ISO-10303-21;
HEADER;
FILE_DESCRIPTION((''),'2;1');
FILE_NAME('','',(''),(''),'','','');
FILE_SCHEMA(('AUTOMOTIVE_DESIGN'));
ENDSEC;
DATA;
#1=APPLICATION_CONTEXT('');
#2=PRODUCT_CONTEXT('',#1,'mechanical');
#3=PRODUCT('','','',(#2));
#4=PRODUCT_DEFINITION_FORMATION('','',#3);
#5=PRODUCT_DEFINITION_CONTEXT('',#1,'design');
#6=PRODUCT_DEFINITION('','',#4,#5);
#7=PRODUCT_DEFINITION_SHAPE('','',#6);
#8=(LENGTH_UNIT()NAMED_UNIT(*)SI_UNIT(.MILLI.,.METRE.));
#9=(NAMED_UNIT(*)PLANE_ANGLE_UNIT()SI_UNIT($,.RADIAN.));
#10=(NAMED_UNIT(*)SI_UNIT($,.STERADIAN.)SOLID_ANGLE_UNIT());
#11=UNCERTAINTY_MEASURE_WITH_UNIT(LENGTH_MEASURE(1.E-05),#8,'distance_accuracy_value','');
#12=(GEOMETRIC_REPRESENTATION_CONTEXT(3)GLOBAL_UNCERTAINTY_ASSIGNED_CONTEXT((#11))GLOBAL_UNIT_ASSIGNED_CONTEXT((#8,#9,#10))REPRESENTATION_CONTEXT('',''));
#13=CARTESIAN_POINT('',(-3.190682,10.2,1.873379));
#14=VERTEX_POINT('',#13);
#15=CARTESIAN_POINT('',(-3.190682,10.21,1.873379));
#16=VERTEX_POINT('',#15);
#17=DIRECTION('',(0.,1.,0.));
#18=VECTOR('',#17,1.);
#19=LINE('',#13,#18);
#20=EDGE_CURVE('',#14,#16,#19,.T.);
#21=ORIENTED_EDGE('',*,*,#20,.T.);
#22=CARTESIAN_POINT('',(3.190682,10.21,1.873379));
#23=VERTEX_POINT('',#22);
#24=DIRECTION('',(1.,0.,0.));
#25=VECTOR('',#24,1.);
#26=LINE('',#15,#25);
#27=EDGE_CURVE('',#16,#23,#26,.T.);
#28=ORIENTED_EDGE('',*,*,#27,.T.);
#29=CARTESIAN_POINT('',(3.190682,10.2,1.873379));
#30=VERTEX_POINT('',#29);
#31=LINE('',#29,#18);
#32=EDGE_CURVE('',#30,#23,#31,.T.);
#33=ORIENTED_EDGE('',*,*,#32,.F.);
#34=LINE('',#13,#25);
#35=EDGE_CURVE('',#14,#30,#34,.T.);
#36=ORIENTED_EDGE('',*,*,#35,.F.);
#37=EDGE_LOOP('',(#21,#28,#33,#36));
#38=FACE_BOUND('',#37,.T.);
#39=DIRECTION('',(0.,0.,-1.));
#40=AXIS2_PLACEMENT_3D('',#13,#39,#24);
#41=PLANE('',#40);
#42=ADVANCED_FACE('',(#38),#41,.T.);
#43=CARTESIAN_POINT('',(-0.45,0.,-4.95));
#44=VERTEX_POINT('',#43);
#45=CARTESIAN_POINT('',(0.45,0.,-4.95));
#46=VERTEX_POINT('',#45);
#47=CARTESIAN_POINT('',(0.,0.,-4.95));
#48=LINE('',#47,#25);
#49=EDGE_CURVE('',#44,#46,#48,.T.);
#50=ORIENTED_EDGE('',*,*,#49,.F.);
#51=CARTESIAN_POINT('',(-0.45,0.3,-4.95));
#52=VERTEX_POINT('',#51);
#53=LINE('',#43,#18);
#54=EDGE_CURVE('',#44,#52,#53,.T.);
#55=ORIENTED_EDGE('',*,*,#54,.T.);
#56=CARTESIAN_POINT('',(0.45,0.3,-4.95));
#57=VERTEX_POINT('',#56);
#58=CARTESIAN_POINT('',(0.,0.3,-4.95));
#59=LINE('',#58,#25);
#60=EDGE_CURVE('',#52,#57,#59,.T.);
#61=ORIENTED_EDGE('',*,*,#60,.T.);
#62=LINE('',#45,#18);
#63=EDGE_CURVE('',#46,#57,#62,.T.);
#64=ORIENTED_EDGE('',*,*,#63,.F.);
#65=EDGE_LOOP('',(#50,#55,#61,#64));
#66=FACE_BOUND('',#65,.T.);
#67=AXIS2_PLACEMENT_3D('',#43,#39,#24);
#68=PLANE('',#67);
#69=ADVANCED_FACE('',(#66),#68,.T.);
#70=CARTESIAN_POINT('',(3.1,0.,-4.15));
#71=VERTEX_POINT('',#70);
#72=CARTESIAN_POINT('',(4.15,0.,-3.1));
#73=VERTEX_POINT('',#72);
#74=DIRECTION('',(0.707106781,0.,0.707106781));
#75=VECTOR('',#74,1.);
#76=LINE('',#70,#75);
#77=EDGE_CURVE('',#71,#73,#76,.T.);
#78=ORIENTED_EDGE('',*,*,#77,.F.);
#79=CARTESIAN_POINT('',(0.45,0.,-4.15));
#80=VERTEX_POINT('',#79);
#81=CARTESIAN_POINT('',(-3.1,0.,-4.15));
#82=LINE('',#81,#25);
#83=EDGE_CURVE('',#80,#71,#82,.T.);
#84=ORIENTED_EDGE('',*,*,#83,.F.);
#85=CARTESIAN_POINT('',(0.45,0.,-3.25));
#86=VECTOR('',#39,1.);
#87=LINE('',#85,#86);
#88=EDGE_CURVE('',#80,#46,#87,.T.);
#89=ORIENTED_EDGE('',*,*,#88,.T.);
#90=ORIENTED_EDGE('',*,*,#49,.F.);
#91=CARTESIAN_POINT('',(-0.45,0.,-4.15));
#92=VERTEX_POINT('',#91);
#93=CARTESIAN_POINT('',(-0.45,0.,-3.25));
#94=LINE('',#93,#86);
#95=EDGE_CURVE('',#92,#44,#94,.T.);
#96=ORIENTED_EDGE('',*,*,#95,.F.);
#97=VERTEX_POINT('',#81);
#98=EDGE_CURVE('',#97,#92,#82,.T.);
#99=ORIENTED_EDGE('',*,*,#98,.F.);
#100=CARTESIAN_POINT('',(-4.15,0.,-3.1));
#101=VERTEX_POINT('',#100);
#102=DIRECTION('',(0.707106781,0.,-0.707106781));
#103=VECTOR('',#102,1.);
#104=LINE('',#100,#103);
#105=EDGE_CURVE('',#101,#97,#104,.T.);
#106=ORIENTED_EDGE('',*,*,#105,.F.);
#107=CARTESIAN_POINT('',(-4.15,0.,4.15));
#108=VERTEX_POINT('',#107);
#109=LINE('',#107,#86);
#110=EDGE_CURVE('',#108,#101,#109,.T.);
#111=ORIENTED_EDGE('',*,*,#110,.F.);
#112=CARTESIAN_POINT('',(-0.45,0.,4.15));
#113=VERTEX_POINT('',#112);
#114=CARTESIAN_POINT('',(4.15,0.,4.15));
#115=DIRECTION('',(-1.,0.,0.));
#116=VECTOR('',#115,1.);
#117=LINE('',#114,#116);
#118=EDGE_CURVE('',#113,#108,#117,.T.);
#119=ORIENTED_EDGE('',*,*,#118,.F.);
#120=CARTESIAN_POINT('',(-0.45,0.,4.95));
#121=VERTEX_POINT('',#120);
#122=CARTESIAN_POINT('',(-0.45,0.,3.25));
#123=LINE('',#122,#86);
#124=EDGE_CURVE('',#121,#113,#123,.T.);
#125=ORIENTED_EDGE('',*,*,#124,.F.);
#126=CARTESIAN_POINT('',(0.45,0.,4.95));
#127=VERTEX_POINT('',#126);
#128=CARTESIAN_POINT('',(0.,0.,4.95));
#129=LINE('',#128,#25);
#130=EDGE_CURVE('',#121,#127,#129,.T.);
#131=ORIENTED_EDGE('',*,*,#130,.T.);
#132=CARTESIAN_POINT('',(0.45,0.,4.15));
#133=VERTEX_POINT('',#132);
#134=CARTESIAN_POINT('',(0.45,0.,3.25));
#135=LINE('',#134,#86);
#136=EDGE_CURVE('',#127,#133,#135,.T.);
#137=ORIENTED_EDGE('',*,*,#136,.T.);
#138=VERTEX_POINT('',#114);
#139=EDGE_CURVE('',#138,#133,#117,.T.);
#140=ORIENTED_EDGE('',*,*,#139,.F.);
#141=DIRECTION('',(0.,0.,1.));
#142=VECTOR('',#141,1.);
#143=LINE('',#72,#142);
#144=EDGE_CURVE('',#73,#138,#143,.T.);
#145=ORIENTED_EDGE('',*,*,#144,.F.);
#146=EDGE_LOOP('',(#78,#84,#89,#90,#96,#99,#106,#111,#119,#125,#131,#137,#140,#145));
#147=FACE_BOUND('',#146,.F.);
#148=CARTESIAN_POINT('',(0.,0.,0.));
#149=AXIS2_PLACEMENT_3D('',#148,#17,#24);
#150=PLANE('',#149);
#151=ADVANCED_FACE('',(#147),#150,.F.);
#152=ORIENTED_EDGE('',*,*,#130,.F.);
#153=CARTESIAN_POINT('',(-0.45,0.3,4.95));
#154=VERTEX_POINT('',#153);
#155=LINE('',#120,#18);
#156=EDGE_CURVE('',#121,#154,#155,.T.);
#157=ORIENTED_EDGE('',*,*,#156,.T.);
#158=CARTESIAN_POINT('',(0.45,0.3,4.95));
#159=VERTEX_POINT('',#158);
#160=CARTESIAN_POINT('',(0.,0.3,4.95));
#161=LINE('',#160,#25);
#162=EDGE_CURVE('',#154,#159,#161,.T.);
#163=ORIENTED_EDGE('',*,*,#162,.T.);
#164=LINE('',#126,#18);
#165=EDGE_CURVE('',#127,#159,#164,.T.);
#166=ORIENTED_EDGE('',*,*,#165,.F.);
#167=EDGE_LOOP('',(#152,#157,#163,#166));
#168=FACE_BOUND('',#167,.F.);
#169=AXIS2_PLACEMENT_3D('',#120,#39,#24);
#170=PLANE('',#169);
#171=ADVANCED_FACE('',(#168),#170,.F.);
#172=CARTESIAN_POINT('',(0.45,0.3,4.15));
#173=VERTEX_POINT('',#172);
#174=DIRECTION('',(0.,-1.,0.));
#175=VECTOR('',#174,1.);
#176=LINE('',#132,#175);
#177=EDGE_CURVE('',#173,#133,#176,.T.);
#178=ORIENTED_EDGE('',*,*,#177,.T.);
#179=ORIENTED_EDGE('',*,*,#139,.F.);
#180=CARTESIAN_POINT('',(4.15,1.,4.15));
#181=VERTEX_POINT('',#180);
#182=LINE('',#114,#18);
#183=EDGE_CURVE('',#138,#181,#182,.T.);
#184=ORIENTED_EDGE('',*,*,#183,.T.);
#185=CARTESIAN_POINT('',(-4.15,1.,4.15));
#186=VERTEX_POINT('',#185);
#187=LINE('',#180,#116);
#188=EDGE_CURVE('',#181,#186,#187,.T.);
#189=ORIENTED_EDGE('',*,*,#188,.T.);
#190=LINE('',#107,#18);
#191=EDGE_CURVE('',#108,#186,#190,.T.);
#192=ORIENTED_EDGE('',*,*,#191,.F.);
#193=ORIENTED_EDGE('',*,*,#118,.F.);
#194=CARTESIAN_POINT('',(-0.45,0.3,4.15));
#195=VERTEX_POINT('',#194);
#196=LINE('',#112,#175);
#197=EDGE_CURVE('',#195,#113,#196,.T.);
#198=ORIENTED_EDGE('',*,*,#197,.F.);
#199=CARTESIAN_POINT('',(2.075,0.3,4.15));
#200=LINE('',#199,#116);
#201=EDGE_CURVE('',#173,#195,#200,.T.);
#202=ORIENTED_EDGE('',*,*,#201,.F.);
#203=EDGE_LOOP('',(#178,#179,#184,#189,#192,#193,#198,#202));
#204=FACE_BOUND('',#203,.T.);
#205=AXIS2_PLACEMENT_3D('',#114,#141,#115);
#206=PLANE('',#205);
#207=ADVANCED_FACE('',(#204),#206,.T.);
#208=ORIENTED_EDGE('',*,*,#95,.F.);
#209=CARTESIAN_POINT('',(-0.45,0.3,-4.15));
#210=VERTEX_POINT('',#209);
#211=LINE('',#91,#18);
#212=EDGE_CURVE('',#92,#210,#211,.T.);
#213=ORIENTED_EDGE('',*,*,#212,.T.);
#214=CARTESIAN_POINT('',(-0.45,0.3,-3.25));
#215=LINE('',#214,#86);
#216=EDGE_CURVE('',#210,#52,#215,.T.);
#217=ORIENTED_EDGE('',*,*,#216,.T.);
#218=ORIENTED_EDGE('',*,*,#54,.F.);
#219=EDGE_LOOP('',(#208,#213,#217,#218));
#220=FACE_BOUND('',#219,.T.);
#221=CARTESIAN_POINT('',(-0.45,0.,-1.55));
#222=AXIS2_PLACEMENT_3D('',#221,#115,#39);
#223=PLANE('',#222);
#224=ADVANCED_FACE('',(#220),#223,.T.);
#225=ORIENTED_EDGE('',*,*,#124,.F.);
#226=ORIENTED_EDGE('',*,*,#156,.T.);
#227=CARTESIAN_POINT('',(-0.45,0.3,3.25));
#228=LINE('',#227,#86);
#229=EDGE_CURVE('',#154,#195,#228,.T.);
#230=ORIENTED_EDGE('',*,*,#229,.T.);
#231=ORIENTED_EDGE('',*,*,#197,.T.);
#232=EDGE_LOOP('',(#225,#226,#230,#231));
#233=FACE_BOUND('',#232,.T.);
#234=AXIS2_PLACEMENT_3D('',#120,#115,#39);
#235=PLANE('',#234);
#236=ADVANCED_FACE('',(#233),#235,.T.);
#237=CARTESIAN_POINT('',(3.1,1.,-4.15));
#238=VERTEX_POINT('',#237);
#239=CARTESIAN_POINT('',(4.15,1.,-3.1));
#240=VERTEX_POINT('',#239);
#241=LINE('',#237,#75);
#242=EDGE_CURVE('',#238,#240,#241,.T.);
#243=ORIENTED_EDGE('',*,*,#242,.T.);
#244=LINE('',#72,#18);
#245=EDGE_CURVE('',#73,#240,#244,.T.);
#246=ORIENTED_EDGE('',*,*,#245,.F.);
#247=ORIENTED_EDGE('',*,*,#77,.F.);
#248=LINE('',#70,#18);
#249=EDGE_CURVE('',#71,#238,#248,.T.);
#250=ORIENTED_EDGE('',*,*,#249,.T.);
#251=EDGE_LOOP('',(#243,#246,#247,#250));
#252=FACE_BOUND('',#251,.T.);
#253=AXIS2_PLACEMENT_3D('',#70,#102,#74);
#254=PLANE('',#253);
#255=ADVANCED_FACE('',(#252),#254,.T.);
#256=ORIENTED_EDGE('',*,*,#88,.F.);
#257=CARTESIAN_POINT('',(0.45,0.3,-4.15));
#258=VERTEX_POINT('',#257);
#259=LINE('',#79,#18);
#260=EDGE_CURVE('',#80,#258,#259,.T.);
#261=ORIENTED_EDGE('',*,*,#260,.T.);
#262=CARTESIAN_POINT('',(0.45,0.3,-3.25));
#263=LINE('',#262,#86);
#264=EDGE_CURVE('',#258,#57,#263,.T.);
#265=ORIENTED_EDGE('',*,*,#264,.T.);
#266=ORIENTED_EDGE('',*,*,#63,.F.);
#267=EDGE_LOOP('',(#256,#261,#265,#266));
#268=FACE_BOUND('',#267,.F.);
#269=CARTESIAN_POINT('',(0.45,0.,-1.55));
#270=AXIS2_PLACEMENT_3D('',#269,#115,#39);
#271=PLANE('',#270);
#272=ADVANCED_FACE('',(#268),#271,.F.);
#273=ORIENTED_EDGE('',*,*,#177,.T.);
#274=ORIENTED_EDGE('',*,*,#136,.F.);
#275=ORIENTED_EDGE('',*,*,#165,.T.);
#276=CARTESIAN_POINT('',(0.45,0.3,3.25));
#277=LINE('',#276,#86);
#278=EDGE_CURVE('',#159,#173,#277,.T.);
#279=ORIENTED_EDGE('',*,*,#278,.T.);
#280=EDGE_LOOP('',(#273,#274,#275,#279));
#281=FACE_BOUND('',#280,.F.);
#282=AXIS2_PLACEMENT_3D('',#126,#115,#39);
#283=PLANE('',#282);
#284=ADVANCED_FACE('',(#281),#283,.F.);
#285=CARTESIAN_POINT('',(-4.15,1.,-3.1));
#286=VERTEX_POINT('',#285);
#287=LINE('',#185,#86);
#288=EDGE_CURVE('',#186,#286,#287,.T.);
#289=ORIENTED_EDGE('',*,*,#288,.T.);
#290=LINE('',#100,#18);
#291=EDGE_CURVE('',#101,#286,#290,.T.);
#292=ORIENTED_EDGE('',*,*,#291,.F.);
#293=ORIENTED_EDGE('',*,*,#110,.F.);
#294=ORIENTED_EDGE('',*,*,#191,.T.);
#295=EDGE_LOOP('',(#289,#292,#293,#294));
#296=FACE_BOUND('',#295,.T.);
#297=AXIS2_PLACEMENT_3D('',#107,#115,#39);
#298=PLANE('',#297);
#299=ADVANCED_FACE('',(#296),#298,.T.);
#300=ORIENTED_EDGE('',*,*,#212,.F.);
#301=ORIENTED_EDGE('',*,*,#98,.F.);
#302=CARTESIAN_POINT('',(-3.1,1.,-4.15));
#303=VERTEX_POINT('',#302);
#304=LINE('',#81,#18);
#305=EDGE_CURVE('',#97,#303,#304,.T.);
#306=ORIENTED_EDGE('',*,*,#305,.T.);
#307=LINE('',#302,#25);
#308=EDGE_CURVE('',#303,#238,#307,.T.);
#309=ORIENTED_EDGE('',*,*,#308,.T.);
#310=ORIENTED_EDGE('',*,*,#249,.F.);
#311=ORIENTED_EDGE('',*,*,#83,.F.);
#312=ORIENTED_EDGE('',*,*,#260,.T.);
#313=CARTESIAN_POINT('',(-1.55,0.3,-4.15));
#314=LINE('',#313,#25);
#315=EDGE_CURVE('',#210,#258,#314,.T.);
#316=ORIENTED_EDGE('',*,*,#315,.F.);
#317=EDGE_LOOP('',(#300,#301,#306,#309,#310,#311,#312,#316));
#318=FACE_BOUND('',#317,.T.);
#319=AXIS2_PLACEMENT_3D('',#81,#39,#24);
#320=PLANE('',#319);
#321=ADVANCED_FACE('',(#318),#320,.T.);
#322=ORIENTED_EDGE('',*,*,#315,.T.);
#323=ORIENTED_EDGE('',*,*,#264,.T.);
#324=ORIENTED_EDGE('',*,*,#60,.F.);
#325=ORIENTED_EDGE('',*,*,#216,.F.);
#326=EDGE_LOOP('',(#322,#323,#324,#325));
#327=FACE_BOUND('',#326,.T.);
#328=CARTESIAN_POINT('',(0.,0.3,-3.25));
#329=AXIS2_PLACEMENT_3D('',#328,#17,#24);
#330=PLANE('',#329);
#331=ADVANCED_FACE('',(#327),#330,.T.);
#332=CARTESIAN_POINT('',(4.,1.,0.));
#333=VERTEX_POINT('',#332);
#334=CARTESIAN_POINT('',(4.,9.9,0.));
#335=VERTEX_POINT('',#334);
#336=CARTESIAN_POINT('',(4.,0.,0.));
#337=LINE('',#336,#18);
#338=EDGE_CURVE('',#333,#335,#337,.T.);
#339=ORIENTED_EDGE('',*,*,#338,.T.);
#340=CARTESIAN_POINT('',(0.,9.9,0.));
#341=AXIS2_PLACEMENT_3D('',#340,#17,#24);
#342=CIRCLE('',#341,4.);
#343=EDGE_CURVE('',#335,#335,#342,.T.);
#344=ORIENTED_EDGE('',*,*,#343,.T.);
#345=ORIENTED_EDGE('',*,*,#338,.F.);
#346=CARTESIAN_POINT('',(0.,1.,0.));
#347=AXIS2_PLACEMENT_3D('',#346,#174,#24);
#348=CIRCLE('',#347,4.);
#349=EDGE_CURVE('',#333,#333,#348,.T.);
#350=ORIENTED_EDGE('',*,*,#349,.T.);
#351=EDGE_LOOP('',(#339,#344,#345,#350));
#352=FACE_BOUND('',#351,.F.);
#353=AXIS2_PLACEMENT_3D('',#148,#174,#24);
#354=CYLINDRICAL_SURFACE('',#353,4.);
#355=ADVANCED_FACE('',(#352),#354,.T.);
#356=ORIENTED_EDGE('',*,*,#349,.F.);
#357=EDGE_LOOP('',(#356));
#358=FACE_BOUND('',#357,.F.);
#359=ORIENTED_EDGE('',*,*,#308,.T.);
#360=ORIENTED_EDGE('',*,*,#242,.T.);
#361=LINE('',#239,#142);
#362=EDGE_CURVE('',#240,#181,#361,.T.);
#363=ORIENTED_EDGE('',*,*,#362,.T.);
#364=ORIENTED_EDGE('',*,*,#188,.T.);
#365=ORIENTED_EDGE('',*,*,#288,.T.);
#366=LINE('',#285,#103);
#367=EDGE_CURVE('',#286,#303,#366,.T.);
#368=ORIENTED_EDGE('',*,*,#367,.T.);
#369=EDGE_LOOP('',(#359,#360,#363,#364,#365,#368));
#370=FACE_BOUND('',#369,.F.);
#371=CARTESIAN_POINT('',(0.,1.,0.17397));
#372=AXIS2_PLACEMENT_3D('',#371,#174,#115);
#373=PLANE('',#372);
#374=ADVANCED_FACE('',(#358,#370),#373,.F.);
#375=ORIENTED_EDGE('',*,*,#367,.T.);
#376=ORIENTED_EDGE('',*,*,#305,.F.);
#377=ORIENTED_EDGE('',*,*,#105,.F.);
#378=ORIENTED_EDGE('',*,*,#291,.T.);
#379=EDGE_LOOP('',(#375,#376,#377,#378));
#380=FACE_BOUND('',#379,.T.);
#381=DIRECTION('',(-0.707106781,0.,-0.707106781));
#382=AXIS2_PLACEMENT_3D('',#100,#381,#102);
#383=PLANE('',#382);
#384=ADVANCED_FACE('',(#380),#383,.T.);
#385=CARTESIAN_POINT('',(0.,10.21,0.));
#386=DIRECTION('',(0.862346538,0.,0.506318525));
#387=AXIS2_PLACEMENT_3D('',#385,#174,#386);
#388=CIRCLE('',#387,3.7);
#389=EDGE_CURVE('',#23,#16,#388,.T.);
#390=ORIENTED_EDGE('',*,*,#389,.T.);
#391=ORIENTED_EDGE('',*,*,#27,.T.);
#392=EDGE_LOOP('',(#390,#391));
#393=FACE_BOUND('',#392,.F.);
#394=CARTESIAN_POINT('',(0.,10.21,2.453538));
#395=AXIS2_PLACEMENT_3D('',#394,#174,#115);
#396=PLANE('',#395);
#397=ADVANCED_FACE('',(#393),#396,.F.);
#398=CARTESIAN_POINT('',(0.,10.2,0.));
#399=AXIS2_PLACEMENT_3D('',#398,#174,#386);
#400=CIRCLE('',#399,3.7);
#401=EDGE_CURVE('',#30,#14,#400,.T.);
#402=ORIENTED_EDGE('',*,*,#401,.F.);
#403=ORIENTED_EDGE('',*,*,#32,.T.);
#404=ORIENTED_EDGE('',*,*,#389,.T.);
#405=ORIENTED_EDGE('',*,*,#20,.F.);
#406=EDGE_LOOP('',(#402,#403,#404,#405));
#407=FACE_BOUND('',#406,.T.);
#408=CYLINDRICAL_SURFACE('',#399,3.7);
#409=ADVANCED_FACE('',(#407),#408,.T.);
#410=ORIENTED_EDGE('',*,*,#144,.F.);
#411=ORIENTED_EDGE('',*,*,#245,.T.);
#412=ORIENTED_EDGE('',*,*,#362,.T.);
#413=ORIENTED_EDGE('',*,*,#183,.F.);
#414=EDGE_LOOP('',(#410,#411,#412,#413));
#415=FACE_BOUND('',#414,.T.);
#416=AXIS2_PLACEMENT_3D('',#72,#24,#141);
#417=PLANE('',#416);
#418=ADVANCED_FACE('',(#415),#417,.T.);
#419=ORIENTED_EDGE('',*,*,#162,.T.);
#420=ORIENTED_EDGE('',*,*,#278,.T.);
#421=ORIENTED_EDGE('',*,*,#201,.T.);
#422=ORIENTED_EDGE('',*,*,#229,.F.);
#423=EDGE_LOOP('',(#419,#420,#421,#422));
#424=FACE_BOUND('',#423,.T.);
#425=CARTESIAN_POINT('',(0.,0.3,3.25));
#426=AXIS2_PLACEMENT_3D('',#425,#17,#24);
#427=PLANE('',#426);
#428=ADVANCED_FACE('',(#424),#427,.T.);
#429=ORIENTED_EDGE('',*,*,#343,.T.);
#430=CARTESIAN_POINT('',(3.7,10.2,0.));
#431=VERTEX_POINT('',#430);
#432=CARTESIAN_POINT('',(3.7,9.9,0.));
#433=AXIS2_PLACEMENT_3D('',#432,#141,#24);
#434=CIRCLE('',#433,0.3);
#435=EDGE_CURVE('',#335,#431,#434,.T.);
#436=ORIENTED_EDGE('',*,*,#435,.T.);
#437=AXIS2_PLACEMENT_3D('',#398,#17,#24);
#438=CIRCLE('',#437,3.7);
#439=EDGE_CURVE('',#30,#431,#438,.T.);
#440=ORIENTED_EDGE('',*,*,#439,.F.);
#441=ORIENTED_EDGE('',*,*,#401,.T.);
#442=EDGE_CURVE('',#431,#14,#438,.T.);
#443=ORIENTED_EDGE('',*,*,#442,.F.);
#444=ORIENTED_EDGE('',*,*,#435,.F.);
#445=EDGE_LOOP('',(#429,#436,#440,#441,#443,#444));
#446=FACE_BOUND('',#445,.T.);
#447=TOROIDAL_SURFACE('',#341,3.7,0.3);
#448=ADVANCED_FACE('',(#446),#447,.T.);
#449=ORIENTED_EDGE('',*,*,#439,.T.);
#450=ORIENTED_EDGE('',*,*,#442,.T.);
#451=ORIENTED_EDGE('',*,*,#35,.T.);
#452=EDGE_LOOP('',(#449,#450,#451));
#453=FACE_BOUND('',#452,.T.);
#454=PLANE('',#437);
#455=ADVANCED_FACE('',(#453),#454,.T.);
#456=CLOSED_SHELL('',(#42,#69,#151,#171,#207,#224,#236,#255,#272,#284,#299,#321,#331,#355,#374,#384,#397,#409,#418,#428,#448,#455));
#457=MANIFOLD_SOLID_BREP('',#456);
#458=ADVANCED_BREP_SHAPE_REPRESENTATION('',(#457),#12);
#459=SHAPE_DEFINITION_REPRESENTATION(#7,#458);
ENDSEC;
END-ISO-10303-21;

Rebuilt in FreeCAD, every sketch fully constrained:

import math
import FreeCAD as App
import Part
import Sketcher


def edges_at(feature, points):
    """Names of the edges that pass closest to the given points."""
    edges = feature.Shape.Edges
    near = lambda p: min(range(len(edges)), key=lambda i: edges[i].distToShape(Part.Vertex(*p))[0])
    return sorted({f"Edge{near(p) + 1}" for p in points})


def add_polygon(sketch, points):
    """Adds a closed chain of lines whose ends are joined by coincident constraints."""
    first, n = sketch.GeometryCount, len(points)
    for a, b in zip(points, points[1:] + points[:1]):
        sketch.addGeometry(Part.LineSegment(App.Vector(*a, 0), App.Vector(*b, 0)), False)
    for i in range(n):
        sketch.addConstraint(Sketcher.Constraint("Coincident", first + i, 2, first + (i + 1) % n, 1))

doc = App.newDocument("Part")
body = doc.addObject("PartDesign::Body", "Body")

sketch1 = body.newObject("Sketcher::SketchObject", "Sketch")
sketch1.AttachmentSupport = (doc.getObject("XZ_Plane"), [""])
sketch1.MapMode = "FlatFace"
add_polygon(sketch1, [(-4.2, 4.2), (4.2, 4.2), (4.2, -3.1), (3.1, -4.2), (-3.1, -4.2), (-4.2, -3.1)])
sketch1.addConstraint([
    Sketcher.Constraint("Horizontal", 0),
    Sketcher.Constraint("Vertical", 1),
    Sketcher.Constraint("Horizontal", 3),
    Sketcher.Constraint("Vertical", 5),
    Sketcher.Constraint("Symmetric", 1, 2, 4, 2, -2),
    Sketcher.Constraint("Perpendicular", 2, 4),
    Sketcher.Constraint("Equal", 2, 4),
    Sketcher.Constraint("DistanceX", 0, 1, 0, 2, 8.3),
    Sketcher.Constraint("DistanceX", 3, 2, 3, 1, 6.2),
    Sketcher.Constraint("DistanceY", 1, 2, 1, 1, 7.25),
    Sketcher.Constraint("DistanceY", 1, 2, -1, 1, 3.1),
])
pad1 = body.newObject("PartDesign::Pad", "Pad")
pad1.Profile = sketch1
pad1.Length = 1
pad1.Reversed = True

sketch2 = body.newObject("Sketcher::SketchObject", "Sketch001")
sketch2.AttachmentSupport = (doc.getObject("XZ_Plane"), [""])
sketch2.MapMode = "FlatFace"
sketch2.addGeometry(Part.Circle(App.Vector(0, 0, 0), App.Vector(0, 0, 1), 4), False)
sketch2.addConstraint([
    Sketcher.Constraint("Coincident", 0, 3, -1, 1),
    Sketcher.Constraint("Diameter", 0, 8.0),
])
pad2 = body.newObject("PartDesign::Pad", "Pad001")
pad2.Profile = sketch2
pad2.Length = 10.2
pad2.Reversed = True
doc.recompute()

fillet = body.newObject("PartDesign::Fillet", "Fillet")
fillet.Base = (pad2, edges_at(pad2, [(-4, 10.2, 0)]))
fillet.Radius = 0.3

sketch3 = body.newObject("Sketcher::SketchObject", "Sketch002")
sketch3.AttachmentSupport = (doc.getObject("XZ_Plane"), [""])
sketch3.MapMode = "FlatFace"
add_polygon(sketch3, [(-0.5, -5), (-0.5, -1.6), (0.5, -1.6), (0.5, -5)])
add_polygon(sketch3, [(-0.5, 1.6), (-0.5, 5), (0.5, 5), (0.5, 1.6)])
sketch3.addConstraint([
    Sketcher.Constraint("Vertical", 0),
    Sketcher.Constraint("Horizontal", 1),
    Sketcher.Constraint("Vertical", 2),
    Sketcher.Constraint("Horizontal", 3),
    Sketcher.Constraint("Vertical", 4),
    Sketcher.Constraint("Horizontal", 5),
    Sketcher.Constraint("Vertical", 6),
    Sketcher.Constraint("Horizontal", 7),
    Sketcher.Constraint("Symmetric", 2, 2, 4, 2, -1, 1),
    Sketcher.Constraint("Symmetric", 0, 2, 6, 2, -1, 1),
    Sketcher.Constraint("Vertical", 3, 2, 4, 2),
    Sketcher.Constraint("DistanceX", 1, 1, 1, 2, 0.9),
    Sketcher.Constraint("DistanceY", 0, 1, 0, 2, 3.4),
    Sketcher.Constraint("DistanceY", 0, 2, 4, 2, 6.5),
])
pad3 = body.newObject("PartDesign::Pad", "Pad002")
pad3.Profile = sketch3
pad3.Length = 0.3
pad3.Reversed = True

sketch4 = body.newObject("Sketcher::SketchObject", "Sketch003")
sketch4.AttachmentSupport = (doc.getObject("XZ_Plane"), [""])
sketch4.MapMode = "FlatFace"
sketch4.AttachmentOffset = App.Placement(App.Vector(0, 0, -10.2), App.Rotation())
sketch4.addGeometry([
    Part.LineSegment(App.Vector(3.2, 1.9, 0), App.Vector(-3.2, 1.9, 0)),
    Part.ArcOfCircle(Part.Circle(App.Vector(0, 0, 0), App.Vector(0, 0, 1), 3.7), math.radians(30), math.radians(150)),
], False)
sketch4.addConstraint([
    Sketcher.Constraint("Coincident", 0, 1, 1, 1),
    Sketcher.Constraint("Coincident", 1, 2, 0, 2),
    Sketcher.Constraint("Horizontal", 0),
    Sketcher.Constraint("Coincident", 1, 3, -1, 1),
    Sketcher.Constraint("Radius", 1, 3.7),
    Sketcher.Constraint("DistanceX", 0, 2, 0, 1, 6.381364),
])
pad4 = body.newObject("PartDesign::Pad", "Pad003")
pad4.Profile = sketch4
pad4.Length = 0.01
pad4.Reversed = True

doc.recompute()
